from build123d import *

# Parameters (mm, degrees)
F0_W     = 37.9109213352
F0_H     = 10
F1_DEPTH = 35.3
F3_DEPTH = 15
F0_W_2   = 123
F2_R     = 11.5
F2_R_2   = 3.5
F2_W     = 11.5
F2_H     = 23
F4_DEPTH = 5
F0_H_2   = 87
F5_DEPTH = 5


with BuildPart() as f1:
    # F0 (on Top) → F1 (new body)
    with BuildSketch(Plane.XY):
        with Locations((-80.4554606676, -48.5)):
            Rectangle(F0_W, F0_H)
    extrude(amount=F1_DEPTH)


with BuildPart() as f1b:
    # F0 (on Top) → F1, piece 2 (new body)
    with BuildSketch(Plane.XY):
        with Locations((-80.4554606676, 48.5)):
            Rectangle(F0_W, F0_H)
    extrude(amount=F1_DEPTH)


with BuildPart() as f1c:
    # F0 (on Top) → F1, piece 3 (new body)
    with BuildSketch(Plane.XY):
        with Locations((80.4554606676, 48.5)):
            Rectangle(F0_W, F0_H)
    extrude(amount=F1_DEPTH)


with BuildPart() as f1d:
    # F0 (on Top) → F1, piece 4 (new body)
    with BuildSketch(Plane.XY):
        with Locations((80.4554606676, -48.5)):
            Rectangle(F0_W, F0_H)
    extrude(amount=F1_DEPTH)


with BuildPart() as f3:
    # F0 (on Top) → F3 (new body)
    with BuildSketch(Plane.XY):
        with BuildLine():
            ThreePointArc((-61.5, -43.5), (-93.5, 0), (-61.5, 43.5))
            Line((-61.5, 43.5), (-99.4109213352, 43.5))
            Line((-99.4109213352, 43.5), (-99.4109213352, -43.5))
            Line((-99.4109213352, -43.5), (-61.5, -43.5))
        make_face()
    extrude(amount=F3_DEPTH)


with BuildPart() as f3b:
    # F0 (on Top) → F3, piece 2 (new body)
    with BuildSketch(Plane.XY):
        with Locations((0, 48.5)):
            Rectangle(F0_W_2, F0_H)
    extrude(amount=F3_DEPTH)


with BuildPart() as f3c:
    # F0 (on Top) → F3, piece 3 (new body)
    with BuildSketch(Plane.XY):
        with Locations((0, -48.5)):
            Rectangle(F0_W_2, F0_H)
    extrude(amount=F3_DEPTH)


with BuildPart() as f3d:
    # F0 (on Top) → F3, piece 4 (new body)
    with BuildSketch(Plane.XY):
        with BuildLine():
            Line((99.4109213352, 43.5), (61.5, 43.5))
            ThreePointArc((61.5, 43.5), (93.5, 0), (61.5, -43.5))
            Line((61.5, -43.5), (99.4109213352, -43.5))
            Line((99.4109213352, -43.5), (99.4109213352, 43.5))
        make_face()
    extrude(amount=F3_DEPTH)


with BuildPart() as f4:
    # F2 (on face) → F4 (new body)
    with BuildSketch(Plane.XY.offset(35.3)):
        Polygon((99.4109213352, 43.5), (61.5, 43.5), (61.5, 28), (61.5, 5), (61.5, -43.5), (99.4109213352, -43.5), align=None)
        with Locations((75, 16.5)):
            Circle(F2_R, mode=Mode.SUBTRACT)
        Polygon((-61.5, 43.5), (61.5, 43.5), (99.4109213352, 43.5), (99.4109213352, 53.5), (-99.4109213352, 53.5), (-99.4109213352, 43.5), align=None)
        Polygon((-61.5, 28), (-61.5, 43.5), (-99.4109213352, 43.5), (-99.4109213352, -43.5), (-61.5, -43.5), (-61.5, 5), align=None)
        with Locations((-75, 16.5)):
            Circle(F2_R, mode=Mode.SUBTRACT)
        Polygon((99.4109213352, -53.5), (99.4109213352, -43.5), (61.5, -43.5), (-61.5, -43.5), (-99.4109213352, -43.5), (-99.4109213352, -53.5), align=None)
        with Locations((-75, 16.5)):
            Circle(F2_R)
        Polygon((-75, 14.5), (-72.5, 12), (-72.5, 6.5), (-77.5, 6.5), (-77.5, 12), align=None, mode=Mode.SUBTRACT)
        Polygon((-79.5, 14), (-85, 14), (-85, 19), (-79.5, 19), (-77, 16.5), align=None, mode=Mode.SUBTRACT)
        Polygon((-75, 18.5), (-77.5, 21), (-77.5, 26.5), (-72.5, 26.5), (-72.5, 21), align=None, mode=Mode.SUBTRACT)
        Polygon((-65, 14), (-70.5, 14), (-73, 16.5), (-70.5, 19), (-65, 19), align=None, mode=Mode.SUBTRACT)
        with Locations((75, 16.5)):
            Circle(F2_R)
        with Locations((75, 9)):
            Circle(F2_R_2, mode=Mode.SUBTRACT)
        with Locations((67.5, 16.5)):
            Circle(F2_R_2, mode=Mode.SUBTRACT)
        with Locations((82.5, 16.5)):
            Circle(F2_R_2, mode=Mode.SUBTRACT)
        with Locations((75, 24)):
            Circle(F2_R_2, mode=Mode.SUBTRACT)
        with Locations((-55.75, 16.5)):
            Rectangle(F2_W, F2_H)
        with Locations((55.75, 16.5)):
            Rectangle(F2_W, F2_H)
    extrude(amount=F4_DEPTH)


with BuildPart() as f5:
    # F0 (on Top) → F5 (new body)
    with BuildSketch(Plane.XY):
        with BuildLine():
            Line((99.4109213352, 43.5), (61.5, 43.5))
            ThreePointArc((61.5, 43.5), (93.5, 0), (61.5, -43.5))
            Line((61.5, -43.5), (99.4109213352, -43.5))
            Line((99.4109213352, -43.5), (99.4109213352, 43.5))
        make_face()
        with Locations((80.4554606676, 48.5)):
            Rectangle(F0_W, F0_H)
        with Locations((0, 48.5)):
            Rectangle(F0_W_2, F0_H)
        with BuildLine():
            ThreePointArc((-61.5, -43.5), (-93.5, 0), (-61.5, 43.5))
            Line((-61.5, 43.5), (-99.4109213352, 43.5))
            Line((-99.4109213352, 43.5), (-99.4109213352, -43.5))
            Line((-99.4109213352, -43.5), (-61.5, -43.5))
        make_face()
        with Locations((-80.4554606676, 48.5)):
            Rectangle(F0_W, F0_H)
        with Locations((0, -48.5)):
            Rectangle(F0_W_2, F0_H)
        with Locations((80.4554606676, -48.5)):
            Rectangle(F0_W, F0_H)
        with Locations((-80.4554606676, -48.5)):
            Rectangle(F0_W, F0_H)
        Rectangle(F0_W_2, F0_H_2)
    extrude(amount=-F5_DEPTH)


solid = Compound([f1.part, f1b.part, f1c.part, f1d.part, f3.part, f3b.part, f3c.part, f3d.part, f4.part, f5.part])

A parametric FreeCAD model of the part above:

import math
import FreeCAD as App
import Part
import Sketcher


def add_polygon(sketch, points):
    """Adds a closed chain of lines whose ends are joined by coincident constraints."""
    first, n = sketch.GeometryCount, len(points)
    for a, b in zip(points, points[1:] + points[:1]):
        sketch.addGeometry(Part.LineSegment(App.Vector(*a, 0), App.Vector(*b, 0)), False)
    for i in range(n):
        sketch.addConstraint(Sketcher.Constraint("Coincident", first + i, 2, first + (i + 1) % n, 1))

doc = App.newDocument("Part")
body = doc.addObject("PartDesign::Body", "Body")

# Sketch on XY plane
sketch1 = body.newObject("Sketcher::SketchObject", "Sketch")
sketch1.AttachmentSupport = (doc.getObject("XY_Plane"), [""])
sketch1.MapMode = "FlatFace"
add_polygon(sketch1, [(-99.410921, -43.5), (-99.410921, -53.5), (-61.5, -53.5), (-61.5, -43.5)])  # lines 0-3
sketch1.addConstraint(Sketcher.Constraint("Vertical", 0))
sketch1.addConstraint(Sketcher.Constraint("Horizontal", 1))
sketch1.addConstraint(Sketcher.Constraint("Vertical", 2))
sketch1.addConstraint(Sketcher.Constraint("Horizontal", 3))
sketch1.addConstraint(Sketcher.Constraint("DistanceY", 0, 2, 0, 1, 10.0))
sketch1.addConstraint(Sketcher.Constraint("DistanceY", 0, 2, -1, 1, 53.5))
sketch1.addConstraint(Sketcher.Constraint("DistanceX", 1, 2, -1, 1, 61.5))
sketch1.addConstraint(Sketcher.Constraint("DistanceX", 1, 1, 1, 2, 37.910921))
pad1 = body.newObject("PartDesign::Pad", "Pad")
pad1.Profile = sketch1
pad1.Length = 35.3
body2 = doc.addObject("PartDesign::Body", "Body001")

# Sketch on XY plane
sketch2 = body2.newObject("Sketcher::SketchObject", "Sketch001")
sketch2.AttachmentSupport = (doc.getObject("XY_Plane001"), [""])
sketch2.MapMode = "FlatFace"
add_polygon(sketch2, [(-99.410921, 53.5), (-99.410921, 43.5), (-61.5, 43.5), (-61.5, 53.5)])  # lines 0-3
sketch2.addConstraint(Sketcher.Constraint("Vertical", 0))
sketch2.addConstraint(Sketcher.Constraint("Horizontal", 1))
sketch2.addConstraint(Sketcher.Constraint("Vertical", 2))
sketch2.addConstraint(Sketcher.Constraint("Horizontal", 3))
sketch2.addConstraint(Sketcher.Constraint("DistanceY", 0, 2, 0, 1, 10.0))
sketch2.addConstraint(Sketcher.Constraint("DistanceY", -1, 1, 0, 2, 43.5))
sketch2.addConstraint(Sketcher.Constraint("DistanceX", 1, 2, -1, 1, 61.5))
sketch2.addConstraint(Sketcher.Constraint("DistanceX", 1, 1, 1, 2, 37.910921))
pad2 = body2.newObject("PartDesign::Pad", "Pad001")
pad2.Profile = sketch2
pad2.Length = 35.3
body3 = doc.addObject("PartDesign::Body", "Body002")

# Sketch on XY plane
sketch3 = body3.newObject("Sketcher::SketchObject", "Sketch002")
sketch3.AttachmentSupport = (doc.getObject("XY_Plane002"), [""])
sketch3.MapMode = "FlatFace"
add_polygon(sketch3, [(61.5, 53.5), (61.5, 43.5), (99.410921, 43.5), (99.410921, 53.5)])  # lines 0-3
sketch3.addConstraint(Sketcher.Constraint("Vertical", 0))
sketch3.addConstraint(Sketcher.Constraint("Horizontal", 1))
sketch3.addConstraint(Sketcher.Constraint("Vertical", 2))
sketch3.addConstraint(Sketcher.Constraint("Horizontal", 3))
sketch3.addConstraint(Sketcher.Constraint("DistanceY", 0, 2, 0, 1, 10.0))
sketch3.addConstraint(Sketcher.Constraint("DistanceX", -1, 1, 0, 2, 61.5))
sketch3.addConstraint(Sketcher.Constraint("DistanceY", -1, 1, 0, 2, 43.5))
sketch3.addConstraint(Sketcher.Constraint("DistanceX", 1, 1, 1, 2, 37.910921))
pad3 = body3.newObject("PartDesign::Pad", "Pad002")
pad3.Profile = sketch3
pad3.Length = 35.3
body4 = doc.addObject("PartDesign::Body", "Body003")

# Sketch on XY plane
sketch4 = body4.newObject("Sketcher::SketchObject", "Sketch003")
sketch4.AttachmentSupport = (doc.getObject("XY_Plane003"), [""])
sketch4.MapMode = "FlatFace"
add_polygon(sketch4, [(61.5, -43.5), (61.5, -53.5), (99.410921, -53.5), (99.410921, -43.5)])  # lines 0-3
sketch4.addConstraint(Sketcher.Constraint("Vertical", 0))
sketch4.addConstraint(Sketcher.Constraint("Horizontal", 1))
sketch4.addConstraint(Sketcher.Constraint("Vertical", 2))
sketch4.addConstraint(Sketcher.Constraint("Horizontal", 3))
sketch4.addConstraint(Sketcher.Constraint("DistanceY", 0, 2, 0, 1, 10.0))
sketch4.addConstraint(Sketcher.Constraint("DistanceX", -1, 1, 0, 2, 61.5))
sketch4.addConstraint(Sketcher.Constraint("DistanceY", 0, 2, -1, 1, 53.5))
sketch4.addConstraint(Sketcher.Constraint("DistanceX", 1, 1, 1, 2, 37.910921))
pad4 = body4.newObject("PartDesign::Pad", "Pad003")
pad4.Profile = sketch4
pad4.Length = 35.3
body5 = doc.addObject("PartDesign::Body", "Body004")

# Sketch on XY plane
sketch5 = body5.newObject("Sketcher::SketchObject", "Sketch004")
sketch5.AttachmentSupport = (doc.getObject("XY_Plane004"), [""])
sketch5.MapMode = "FlatFace"
sketch5.addGeometry(Part.ArcOfCircle(Part.Circle(App.Vector(-47.933594, 0, 0), App.Vector(0, 0, 1), 45.566406), math.radians(107.321207), math.radians(252.678793)), False)
sketch5.addGeometry(Part.LineSegment(App.Vector(-61.5, 43.5, 0), App.Vector(-99.410921, 43.5, 0)), False)
sketch5.addGeometry(Part.LineSegment(App.Vector(-99.410921, 43.5, 0), App.Vector(-99.410921, -43.5, 0)), False)
sketch5.addGeometry(Part.LineSegment(App.Vector(-99.410921, -43.5, 0), App.Vector(-61.5, -43.5, 0)), False)
sketch5.addConstraint(Sketcher.Constraint("Coincident", 0, 1, 1, 1))
sketch5.addConstraint(Sketcher.Constraint("Coincident", 1, 2, 2, 1))
sketch5.addConstraint(Sketcher.Constraint("Coincident", 2, 2, 3, 1))
sketch5.addConstraint(Sketcher.Constraint("Coincident", 3, 2, 0, 2))
sketch5.addConstraint(Sketcher.Constraint("Horizontal", 1))
sketch5.addConstraint(Sketcher.Constraint("Vertical", 2))
sketch5.addConstraint(Sketcher.Constraint("Horizontal", 3))
sketch5.addConstraint(Sketcher.Constraint("Symmetric", 0, 1, 3, 2, -1))
sketch5.addConstraint(Sketcher.Constraint("DistanceY", 2, 2, 2, 1, 87.0))
sketch5.addConstraint(Sketcher.Constraint("DistanceX", 0, 1, -1, 1, 61.5))
sketch5.addConstraint(Sketcher.Constraint("Radius", 0, 45.566406))
sketch5.addConstraint(Sketcher.Constraint("DistanceX", 1, 2, 1, 1, 37.910921))
pad5 = body5.newObject("PartDesign::Pad", "Pad004")
pad5.Profile = sketch5
pad5.Length = 15
body6 = doc.addObject("PartDesign::Body", "Body005")

# Sketch on XY plane
sketch6 = body6.newObject("Sketcher::SketchObject", "Sketch005")
sketch6.AttachmentSupport = (doc.getObject("XY_Plane005"), [""])
sketch6.MapMode = "FlatFace"
add_polygon(sketch6, [(-61.5, 53.5), (-61.5, 43.5), (61.5, 43.5), (61.5, 53.5)])  # lines 0-3
sketch6.addConstraint(Sketcher.Constraint("Vertical", 0))
sketch6.addConstraint(Sketcher.Constraint("Horizontal", 1))
sketch6.addConstraint(Sketcher.Constraint("Vertical", 2))
sketch6.addConstraint(Sketcher.Constraint("Horizontal", 3))
sketch6.addConstraint(Sketcher.Constraint("DistanceX", 1, 1, 1, 2, 123.0))
sketch6.addConstraint(Sketcher.Constraint("DistanceY", 0, 2, 0, 1, 10.0))
sketch6.addConstraint(Sketcher.Constraint("DistanceX", 0, 2, -1, 1, 61.5))
sketch6.addConstraint(Sketcher.Constraint("DistanceY", -1, 1, 0, 2, 43.5))
pad6 = body6.newObject("PartDesign::Pad", "Pad005")
pad6.Profile = sketch6
pad6.Length = 15
body7 = doc.addObject("PartDesign::Body", "Body006")

# Sketch on XY plane
sketch7 = body7.newObject("Sketcher::SketchObject", "Sketch006")
sketch7.AttachmentSupport = (doc.getObject("XY_Plane006"), [""])
sketch7.MapMode = "FlatFace"
add_polygon(sketch7, [(-61.5, -43.5), (-61.5, -53.5), (61.5, -53.5), (61.5, -43.5)])  # lines 0-3
sketch7.addConstraint(Sketcher.Constraint("Vertical", 0))
sketch7.addConstraint(Sketcher.Constraint("Horizontal", 1))
sketch7.addConstraint(Sketcher.Constraint("Vertical", 2))
sketch7.addConstraint(Sketcher.Constraint("Horizontal", 3))
sketch7.addConstraint(Sketcher.Constraint("DistanceX", 1, 1, 1, 2, 123.0))
sketch7.addConstraint(Sketcher.Constraint("DistanceY", 0, 2, 0, 1, 10.0))
sketch7.addConstraint(Sketcher.Constraint("DistanceX", 0, 2, -1, 1, 61.5))
sketch7.addConstraint(Sketcher.Constraint("DistanceY", 0, 2, -1, 1, 53.5))
pad7 = body7.newObject("PartDesign::Pad", "Pad006")
pad7.Profile = sketch7
pad7.Length = 15
body8 = doc.addObject("PartDesign::Body", "Body007")

# Sketch on XY plane
sketch8 = body8.newObject("Sketcher::SketchObject", "Sketch007")
sketch8.AttachmentSupport = (doc.getObject("XY_Plane007"), [""])
sketch8.MapMode = "FlatFace"
sketch8.addGeometry(Part.LineSegment(App.Vector(99.410921, 43.5, 0), App.Vector(61.5, 43.5, 0)), False)
sketch8.addGeometry(Part.ArcOfCircle(Part.Circle(App.Vector(47.933594, 0, 0), App.Vector(0, 0, 1), 45.566406), math.radians(-72.678793), math.radians(72.678793)), False)
sketch8.addGeometry(Part.LineSegment(App.Vector(61.5, -43.5, 0), App.Vector(99.410921, -43.5, 0)), False)
sketch8.addGeometry(Part.LineSegment(App.Vector(99.410921, -43.5, 0), App.Vector(99.410921, 43.5, 0)), False)
sketch8.addConstraint(Sketcher.Constraint("Coincident", 0, 2, 1, 2))
sketch8.addConstraint(Sketcher.Constraint("Coincident", 1, 1, 2, 1))
sketch8.addConstraint(Sketcher.Constraint("Coincident", 2, 2, 3, 1))
sketch8.addConstraint(Sketcher.Constraint("Coincident", 3, 2, 0, 1))
sketch8.addConstraint(Sketcher.Constraint("Horizontal", 0))
sketch8.addConstraint(Sketcher.Constraint("Horizontal", 2))
sketch8.addConstraint(Sketcher.Constraint("Vertical", 3))
sketch8.addConstraint(Sketcher.Constraint("Symmetric", 0, 2, 1, 1, -1))
sketch8.addConstraint(Sketcher.Constraint("DistanceY", 3, 1, 3, 2, 87.0))
sketch8.addConstraint(Sketcher.Constraint("DistanceX", -1, 1, 0, 2, 61.5))
sketch8.addConstraint(Sketcher.Constraint("Radius", 1, 45.566406))
sketch8.addConstraint(Sketcher.Constraint("DistanceX", 0, 2, 0, 1, 37.910921))
pad8 = body8.newObject("PartDesign::Pad", "Pad007")
pad8.Profile = sketch8
pad8.Length = 15
body9 = doc.addObject("PartDesign::Body", "Body008")

# Sketch on XY plane
sketch9 = body9.newObject("Sketcher::SketchObject", "Sketch008")
sketch9.AttachmentSupport = (doc.getObject("XY_Plane008"), [""])
sketch9.MapMode = "FlatFace"
sketch9.AttachmentOffset = App.Placement(App.Vector(0, 0, 35.3), App.Rotation())
add_polygon(sketch9, [(99.410921, 53.5), (-99.410921, 53.5), (-99.410921, -53.5), (99.410921, -53.5)])  # lines 0-3
add_polygon(sketch9, [(-77.5, 12), (-75, 14.5), (-72.5, 12), (-72.5, 6.5), (-77.5, 6.5)])  # lines 4-8
add_polygon(sketch9, [(-77, 16.5), (-79.5, 14), (-85, 14), (-85, 19), (-79.5, 19)])  # lines 9-13
add_polygon(sketch9, [(-65, 19), (-65, 14), (-70.5, 14), (-73, 16.5), (-70.5, 19)])  # lines 14-18
add_polygon(sketch9, [(61.5, 43.5), (61.5, 28), (50, 28), (50, 5), (61.5, 5), (61.5, -43.5), (-61.5, -43.5), (-61.5, 5), (-50, 5), (-50, 28), (-61.5, 28), (-61.5, 43.5)])  # lines 19-30
add_polygon(sketch9, [(-72.5, 21), (-75, 18.5), (-77.5, 21), (-77.5, 26.5), (-72.5, 26.5)])  # lines 31-35
sketch9.addGeometry(Part.Circle(App.Vector(75, 9, 0), App.Vector(0, 0, 1), 3.5), False)  # 36
sketch9.addGeometry(Part.Circle(App.Vector(67.5, 16.5, 0), App.Vector(0, 0, 1), 3.5), False)  # 37
sketch9.addGeometry(Part.Circle(App.Vector(82.5, 16.5, 0), App.Vector(0, 0, 1), 3.5), False)  # 38
sketch9.addGeometry(Part.Circle(App.Vector(75, 24, 0), App.Vector(0, 0, 1), 3.5), False)  # 39
sketch9.addConstraint(Sketcher.Constraint("Horizontal", 0))
sketch9.addConstraint(Sketcher.Constraint("Vertical", 1))
sketch9.addConstraint(Sketcher.Constraint("Horizontal", 2))
sketch9.addConstraint(Sketcher.Constraint("Vertical", 3))
sketch9.addConstraint(Sketcher.Constraint("Vertical", 6))
sketch9.addConstraint(Sketcher.Constraint("Horizontal", 7))
sketch9.addConstraint(Sketcher.Constraint("Vertical", 8))
sketch9.addConstraint(Sketcher.Constraint("Horizontal", 10))
sketch9.addConstraint(Sketcher.Constraint("Vertical", 11))
sketch9.addConstraint(Sketcher.Constraint("Horizontal", 12))
sketch9.addConstraint(Sketcher.Constraint("Vertical", 14))
sketch9.addConstraint(Sketcher.Constraint("Horizontal", 15))
sketch9.addConstraint(Sketcher.Constraint("Horizontal", 18))
sketch9.addConstraint(Sketcher.Constraint("Vertical", 19))
sketch9.addConstraint(Sketcher.Constraint("Horizontal", 20))
sketch9.addConstraint(Sketcher.Constraint("Vertical", 21))
sketch9.addConstraint(Sketcher.Constraint("Horizontal", 22))
sketch9.addConstraint(Sketcher.Constraint("Vertical", 23))
sketch9.addConstraint(Sketcher.Constraint("Horizontal", 24))
sketch9.addConstraint(Sketcher.Constraint("Vertical", 25))
sketch9.addConstraint(Sketcher.Constraint("Horizontal", 26))
sketch9.addConstraint(Sketcher.Constraint("Vertical", 27))
sketch9.addConstraint(Sketcher.Constraint("Horizontal", 28))
sketch9.addConstraint(Sketcher.Constraint("Vertical", 29))
sketch9.addConstraint(Sketcher.Constraint("Horizontal", 30))
sketch9.addConstraint(Sketcher.Constraint("Vertical", 33))
sketch9.addConstraint(Sketcher.Constraint("Horizontal", 34))
sketch9.addConstraint(Sketcher.Constraint("Vertical", 35))
sketch9.addConstraint(Sketcher.Constraint("Equal", 36, 37))
sketch9.addConstraint(Sketcher.Constraint("Equal", 37, 38))
sketch9.addConstraint(Sketcher.Constraint("Equal", 38, 39))
sketch9.addConstraint(Sketcher.Constraint("Symmetric", 0, 2, 2, 2, -1, 1))
sketch9.addConstraint(Sketcher.Constraint("Symmetric", 23, 2, 29, 2, -1, 1))
sketch9.addConstraint(Sketcher.Constraint("Symmetric", 22, 2, 25, 2, -2))
sketch9.addConstraint(Sketcher.Constraint("Symmetric", 20, 2, 27, 2, -2))
sketch9.addConstraint(Sketcher.Constraint("Perpendicular", 4, 5))
sketch9.addConstraint(Sketcher.Constraint("Perpendicular", 5, 9))
sketch9.addConstraint(Sketcher.Constraint("Perpendicular", 9, 13))
sketch9.addConstraint(Sketcher.Constraint("Parallel", 13, 16))
sketch9.addConstraint(Sketcher.Constraint("Perpendicular", 16, 17))
sketch9.addConstraint(Sketcher.Constraint("Parallel", 17, 31))
sketch9.addConstraint(Sketcher.Constraint("Perpendicular", 31, 32))
sketch9.addConstraint(Sketcher.Constraint("Horizontal", 37, 3, 38, 3))
sketch9.addConstraint(Sketcher.Constraint("Horizontal", 5, 2, 8, 2))
sketch9.addConstraint(Sketcher.Constraint("Horizontal", 38, 3, 13, 2))
sketch9.addConstraint(Sketcher.Constraint("Horizontal", 10, 2, 14, 2))
sketch9.addConstraint(Sketcher.Constraint("Horizontal", 13, 2, 16, 2))
sketch9.addConstraint(Sketcher.Constraint("Horizontal", 12, 2, 17, 2))
sketch9.addConstraint(Sketcher.Constraint("Horizontal", 32, 2, 35, 2))
sketch9.addConstraint(Sketcher.Constraint("Vertical", 36, 3, 39, 3))
sketch9.addConstraint(Sketcher.Constraint("Vertical", 9, 2, 12, 2))
sketch9.addConstraint(Sketcher.Constraint("Vertical", 15, 2, 17, 2))
sketch9.addConstraint(Sketcher.Constraint("Vertical", 19, 2, 22, 2))
sketch9.addConstraint(Sketcher.Constraint("Vertical", 4, 2, 31, 2))
sketch9.addConstraint(Sketcher.Constraint("Vertical", 8, 2, 32, 2))
sketch9.addConstraint(Sketcher.Constraint("Equal", 12, 15))
sketch9.addConstraint(Sketcher.Constraint("Equal", 18, 6))
sketch9.addConstraint(Sketcher.Constraint("Equal", 34, 11))
sketch9.addConstraint(Sketcher.Constraint("Equal", 8, 33))
sketch9.addConstraint(Sketcher.Constraint("Diameter", 36, 7.0))
sketch9.addConstraint(Sketcher.Constraint("DistanceX", 7, 2, 7, 1, 5.0))
sketch9.addConstraint(Sketcher.Constraint("DistanceX", 24, 2, 24, 1, 123.0))
sketch9.addConstraint(Sketcher.Constraint("DistanceY", 1, 2, 1, 1, 107.0))
sketch9.addConstraint(Sketcher.Constraint("DistanceY", 21, 2, 21, 1, 23.0))
sketch9.addConstraint(Sketcher.Constraint("DistanceX", 10, 2, 10, 1, 5.5))
sketch9.addConstraint(Sketcher.Constraint("DistanceX", 20, 2, 20, 1, 11.5))
sketch9.addConstraint(Sketcher.Constraint("DistanceY", 19, 2, 19, 1, 15.5))
sketch9.addConstraint(Sketcher.Constraint("DistanceY", 23, 2, 23, 1, 48.5))
sketch9.addConstraint(Sketcher.Constraint("DistanceX", -1, 1, 36, 3, 75.0))
sketch9.addConstraint(Sketcher.Constraint("DistanceY", -1, 1, 36, 3, 9.0))
sketch9.addConstraint(Sketcher.Constraint("DistanceY", -1, 1, 39, 3, 24.0))
sketch9.addConstraint(Sketcher.Constraint("DistanceX", 4, 2, -1, 1, 75.0))
sketch9.addConstraint(Sketcher.Constraint("DistanceY", -1, 1, 5, 2, 12.0))
sketch9.addConstraint(Sketcher.Constraint("DistanceY", -1, 1, 9, 2, 14.0))
sketch9.addConstraint(Sketcher.Constraint("DistanceX", 10, 2, -1, 1, 85.0))
sketch9.addConstraint(Sketcher.Constraint("DistanceX", 14, 2, -1, 1, 65.0))
sketch9.addConstraint(Sketcher.Constraint("DistanceY", -1, 1, 32, 2, 21.0))
sketch9.addConstraint(Sketcher.Constraint("DistanceX", 37, 3, 38, 3, 15.0))
sketch9.addConstraint(Sketcher.Constraint("DistanceX", 5, 2, 37, 3, 140.0))
sketch9.addConstraint(Sketcher.Constraint("DistanceX", 0, 2, 0, 1, 198.821843))
pad9 = body9.newObject("PartDesign::Pad", "Pad008")
pad9.Profile = sketch9
pad9.Length = 5
body10 = doc.addObject("PartDesign::Body", "Body009")

# Sketch on XY plane
sketch10 = body10.newObject("Sketcher::SketchObject", "Sketch009")
sketch10.AttachmentSupport = (doc.getObject("XY_Plane009"), [""])
sketch10.MapMode = "FlatFace"
add_polygon(sketch10, [(-99.410921, 53.5), (-99.410921, -53.5), (99.410921, -53.5), (99.410921, 53.5)])  # lines 0-3
sketch10.addGeometry(Part.ArcOfCircle(Part.Circle(App.Vector(-47.933594, 0, 0), App.Vector(0, 0, 1), 45.566406), math.radians(107.321207), math.radians(252.678793)), False)  # 4
sketch10.addGeometry(Part.LineSegment(App.Vector(-61.5, 43.5, 0), App.Vector(-61.5, -43.5, 0)), False)  # 5
sketch10.addGeometry(Part.ArcOfCircle(Part.Circle(App.Vector(47.933594, 0, 0), App.Vector(0, 0, 1), 45.566406), math.radians(-72.678793), math.radians(72.678793)), False)  # 6
sketch10.addGeometry(Part.LineSegment(App.Vector(61.5, -43.5, 0), App.Vector(61.5, 43.5, 0)), False)  # 7
sketch10.addConstraint(Sketcher.Constraint("Coincident", 4, 1, 5, 1))
sketch10.addConstraint(Sketcher.Constraint("Coincident", 5, 2, 4, 2))
sketch10.addConstraint(Sketcher.Constraint("Coincident", 6, 1, 7, 1))
sketch10.addConstraint(Sketcher.Constraint("Coincident", 7, 2, 6, 2))
sketch10.addConstraint(Sketcher.Constraint("Vertical", 0))
sketch10.addConstraint(Sketcher.Constraint("Horizontal", 1))
sketch10.addConstraint(Sketcher.Constraint("Vertical", 2))
sketch10.addConstraint(Sketcher.Constraint("Horizontal", 3))
sketch10.addConstraint(Sketcher.Constraint("Vertical", 5))
sketch10.addConstraint(Sketcher.Constraint("Vertical", 7))
sketch10.addConstraint(Sketcher.Constraint("Equal", 4, 6))
sketch10.addConstraint(Sketcher.Constraint("Symmetric", 4, 3, 6, 3, -1, 1))
sketch10.addConstraint(Sketcher.Constraint("Symmetric", 0, 2, 2, 2, -1, 1))
sketch10.addConstraint(Sketcher.Constraint("Symmetric", 5, 2, 6, 1, -2))
sketch10.addConstraint(Sketcher.Constraint("DistanceY", 0, 2, 0, 1, 107.0))
sketch10.addConstraint(Sketcher.Constraint("DistanceY", 5, 2, 5, 1, 87.0))
sketch10.addConstraint(Sketcher.Constraint("DistanceX", 5, 2, 6, 1, 123.0))
sketch10.addConstraint(Sketcher.Constraint("Radius", 4, 45.566406))
sketch10.addConstraint(Sketcher.Constraint("DistanceX", 1, 1, 1, 2, 198.821843))
pad10 = body10.newObject("PartDesign::Pad", "Pad009")
pad10.Profile = sketch10
pad10.Length = 5
pad10.Reversed = True

doc.recompute()
